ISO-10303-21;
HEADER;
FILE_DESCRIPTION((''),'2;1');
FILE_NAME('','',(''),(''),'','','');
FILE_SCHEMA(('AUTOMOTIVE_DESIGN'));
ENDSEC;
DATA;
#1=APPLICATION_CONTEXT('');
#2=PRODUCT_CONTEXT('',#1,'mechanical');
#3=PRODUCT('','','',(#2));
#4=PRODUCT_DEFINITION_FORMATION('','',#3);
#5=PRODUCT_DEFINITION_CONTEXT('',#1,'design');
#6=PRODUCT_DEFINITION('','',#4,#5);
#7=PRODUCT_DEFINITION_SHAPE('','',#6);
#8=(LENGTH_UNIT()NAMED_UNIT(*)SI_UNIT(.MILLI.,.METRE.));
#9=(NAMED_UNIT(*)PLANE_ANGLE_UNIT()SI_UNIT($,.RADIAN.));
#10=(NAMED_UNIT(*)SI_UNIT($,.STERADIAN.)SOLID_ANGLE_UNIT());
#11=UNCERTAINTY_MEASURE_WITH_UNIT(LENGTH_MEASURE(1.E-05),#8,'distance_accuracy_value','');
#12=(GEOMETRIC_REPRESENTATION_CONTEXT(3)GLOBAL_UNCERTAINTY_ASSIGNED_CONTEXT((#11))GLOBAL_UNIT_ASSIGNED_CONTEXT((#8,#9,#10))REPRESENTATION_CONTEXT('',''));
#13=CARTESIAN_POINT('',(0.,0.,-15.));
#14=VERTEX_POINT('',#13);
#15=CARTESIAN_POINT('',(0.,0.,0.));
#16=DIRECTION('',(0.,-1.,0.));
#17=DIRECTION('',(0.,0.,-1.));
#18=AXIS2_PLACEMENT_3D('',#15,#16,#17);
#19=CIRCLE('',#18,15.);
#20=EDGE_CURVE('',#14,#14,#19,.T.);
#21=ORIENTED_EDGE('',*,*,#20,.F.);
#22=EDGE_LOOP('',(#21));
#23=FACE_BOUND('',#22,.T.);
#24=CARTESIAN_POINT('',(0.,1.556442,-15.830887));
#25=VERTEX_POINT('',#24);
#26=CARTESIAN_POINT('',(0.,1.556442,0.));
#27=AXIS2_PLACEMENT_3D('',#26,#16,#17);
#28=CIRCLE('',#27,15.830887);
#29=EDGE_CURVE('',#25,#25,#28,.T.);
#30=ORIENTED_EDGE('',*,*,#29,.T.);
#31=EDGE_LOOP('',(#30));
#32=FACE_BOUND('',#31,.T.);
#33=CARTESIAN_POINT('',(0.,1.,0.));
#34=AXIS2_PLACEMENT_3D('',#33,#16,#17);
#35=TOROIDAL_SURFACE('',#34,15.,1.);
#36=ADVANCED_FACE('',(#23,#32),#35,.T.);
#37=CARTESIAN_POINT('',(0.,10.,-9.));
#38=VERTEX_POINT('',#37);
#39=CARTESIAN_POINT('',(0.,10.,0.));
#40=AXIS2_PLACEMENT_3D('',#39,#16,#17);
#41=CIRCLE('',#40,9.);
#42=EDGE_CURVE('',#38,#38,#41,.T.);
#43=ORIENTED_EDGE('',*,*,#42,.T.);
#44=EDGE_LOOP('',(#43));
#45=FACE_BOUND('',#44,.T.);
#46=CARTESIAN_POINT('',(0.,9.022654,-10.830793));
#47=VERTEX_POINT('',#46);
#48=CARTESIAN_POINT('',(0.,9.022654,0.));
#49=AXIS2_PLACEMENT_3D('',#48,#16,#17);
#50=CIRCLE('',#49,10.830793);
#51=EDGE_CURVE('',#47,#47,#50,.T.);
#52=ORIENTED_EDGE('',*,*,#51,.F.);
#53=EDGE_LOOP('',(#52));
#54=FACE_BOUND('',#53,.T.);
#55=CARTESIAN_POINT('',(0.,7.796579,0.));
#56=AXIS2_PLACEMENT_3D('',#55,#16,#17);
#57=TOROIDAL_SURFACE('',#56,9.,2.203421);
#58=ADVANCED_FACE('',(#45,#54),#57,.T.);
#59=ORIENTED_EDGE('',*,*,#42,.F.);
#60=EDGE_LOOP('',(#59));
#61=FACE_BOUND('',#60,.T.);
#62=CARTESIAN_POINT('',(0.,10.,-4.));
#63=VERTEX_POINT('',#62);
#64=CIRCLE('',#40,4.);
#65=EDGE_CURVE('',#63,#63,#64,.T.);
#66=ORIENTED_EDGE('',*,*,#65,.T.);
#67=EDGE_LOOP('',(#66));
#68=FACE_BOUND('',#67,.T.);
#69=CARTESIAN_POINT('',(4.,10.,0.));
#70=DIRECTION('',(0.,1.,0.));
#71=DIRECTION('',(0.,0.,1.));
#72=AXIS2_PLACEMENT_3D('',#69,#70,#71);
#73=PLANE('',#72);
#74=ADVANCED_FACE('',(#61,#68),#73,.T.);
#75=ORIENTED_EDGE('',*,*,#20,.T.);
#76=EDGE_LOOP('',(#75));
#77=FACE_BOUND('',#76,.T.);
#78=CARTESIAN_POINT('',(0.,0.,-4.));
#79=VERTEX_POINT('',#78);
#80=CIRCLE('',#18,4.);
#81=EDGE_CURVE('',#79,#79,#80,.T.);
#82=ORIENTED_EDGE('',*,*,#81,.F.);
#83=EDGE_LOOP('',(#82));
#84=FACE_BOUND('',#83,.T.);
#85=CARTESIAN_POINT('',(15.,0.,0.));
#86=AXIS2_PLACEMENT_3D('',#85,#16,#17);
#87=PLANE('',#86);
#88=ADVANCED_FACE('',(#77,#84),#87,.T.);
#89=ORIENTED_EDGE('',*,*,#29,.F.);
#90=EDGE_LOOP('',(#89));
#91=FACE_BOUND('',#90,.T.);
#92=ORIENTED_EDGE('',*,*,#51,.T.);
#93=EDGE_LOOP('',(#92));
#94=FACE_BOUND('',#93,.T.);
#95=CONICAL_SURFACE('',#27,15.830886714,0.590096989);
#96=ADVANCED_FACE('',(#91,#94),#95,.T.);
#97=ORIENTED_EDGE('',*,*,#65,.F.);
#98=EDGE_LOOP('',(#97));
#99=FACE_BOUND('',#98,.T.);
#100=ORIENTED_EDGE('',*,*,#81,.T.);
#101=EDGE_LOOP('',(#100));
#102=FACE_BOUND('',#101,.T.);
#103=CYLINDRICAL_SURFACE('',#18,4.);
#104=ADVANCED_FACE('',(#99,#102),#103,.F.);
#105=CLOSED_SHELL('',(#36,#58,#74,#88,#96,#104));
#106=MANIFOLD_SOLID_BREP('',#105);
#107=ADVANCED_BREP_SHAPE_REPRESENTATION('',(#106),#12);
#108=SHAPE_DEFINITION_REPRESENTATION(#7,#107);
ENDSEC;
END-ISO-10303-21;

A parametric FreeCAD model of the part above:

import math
import FreeCAD as App
import Part
import Sketcher
Q = App.Units.Quantity

doc = App.newDocument("Part")
body = doc.addObject("PartDesign::Body", "Body")

# Sketch on XY plane
sketch1 = body.newObject("Sketcher::SketchObject", "Sketch")
sketch1.AttachmentSupport = (doc.getObject("XY_Plane"), [""])
sketch1.MapMode = "FlatFace"
sketch1.addGeometry([
    Part.LineSegment(App.Vector(4, 10, 0), App.Vector(4, 0, 0)),  # 0
    Part.LineSegment(App.Vector(4, 0, 0), App.Vector(15, 0, 0)),  # 1
    Part.ArcOfCircle(Part.Circle(App.Vector(15, 1, 0), App.Vector(0, 0, 1), 1), math.radians(-90), math.radians(34)),  # 2
    Part.LineSegment(App.Vector(15.8, 1.6, 0), App.Vector(10.8, 9, 0)),  # 3
    Part.ArcOfCircle(Part.Circle(App.Vector(9, 7.8, 0), App.Vector(0, 0, 1), 2.2), math.radians(34), math.radians(90)),  # 4
    Part.LineSegment(App.Vector(9, 10, 0), App.Vector(4, 10, 0)),  # 5
], False)
sketch1.addConstraint([
    Sketcher.Constraint("Coincident", 0, 2, 1, 1),
    Sketcher.Constraint("Tangent", 1, 2, 2, 1),
    Sketcher.Constraint("Tangent", 2, 2, 3, 1),
    Sketcher.Constraint("Tangent", 3, 2, 4, 1),
    Sketcher.Constraint("Tangent", 4, 2, 5, 1),
    Sketcher.Constraint("Coincident", 5, 2, 0, 1),
    Sketcher.Constraint("Vertical", 0),
    Sketcher.Constraint("Horizontal", 1),
    Sketcher.Constraint("Horizontal", 5),
    Sketcher.Constraint("PointOnObject", 0, 2, -1),
    Sketcher.Constraint("Radius", 2, Q("1 mm")),
    Sketcher.Constraint("DistanceX", 1, 1, 1, 2, Q("11 mm")),
    Sketcher.Constraint("DistanceX", 5, 2, 5, 1, Q("5 mm")),
    Sketcher.Constraint("DistanceY", 0, 2, 0, 1, Q("10 mm")),
    Sketcher.Constraint("DistanceX", -1, 1, 2, 3, Q("15 mm")),
    Sketcher.Constraint("Radius", 4, Q("2.203421 mm")),
])
revolution = body.newObject("PartDesign::Revolution", "Revolution")
revolution.Profile = sketch1
revolution.ReferenceAxis = (sketch1, ["V_Axis"])
revolution.Angle = 360

doc.recompute()
